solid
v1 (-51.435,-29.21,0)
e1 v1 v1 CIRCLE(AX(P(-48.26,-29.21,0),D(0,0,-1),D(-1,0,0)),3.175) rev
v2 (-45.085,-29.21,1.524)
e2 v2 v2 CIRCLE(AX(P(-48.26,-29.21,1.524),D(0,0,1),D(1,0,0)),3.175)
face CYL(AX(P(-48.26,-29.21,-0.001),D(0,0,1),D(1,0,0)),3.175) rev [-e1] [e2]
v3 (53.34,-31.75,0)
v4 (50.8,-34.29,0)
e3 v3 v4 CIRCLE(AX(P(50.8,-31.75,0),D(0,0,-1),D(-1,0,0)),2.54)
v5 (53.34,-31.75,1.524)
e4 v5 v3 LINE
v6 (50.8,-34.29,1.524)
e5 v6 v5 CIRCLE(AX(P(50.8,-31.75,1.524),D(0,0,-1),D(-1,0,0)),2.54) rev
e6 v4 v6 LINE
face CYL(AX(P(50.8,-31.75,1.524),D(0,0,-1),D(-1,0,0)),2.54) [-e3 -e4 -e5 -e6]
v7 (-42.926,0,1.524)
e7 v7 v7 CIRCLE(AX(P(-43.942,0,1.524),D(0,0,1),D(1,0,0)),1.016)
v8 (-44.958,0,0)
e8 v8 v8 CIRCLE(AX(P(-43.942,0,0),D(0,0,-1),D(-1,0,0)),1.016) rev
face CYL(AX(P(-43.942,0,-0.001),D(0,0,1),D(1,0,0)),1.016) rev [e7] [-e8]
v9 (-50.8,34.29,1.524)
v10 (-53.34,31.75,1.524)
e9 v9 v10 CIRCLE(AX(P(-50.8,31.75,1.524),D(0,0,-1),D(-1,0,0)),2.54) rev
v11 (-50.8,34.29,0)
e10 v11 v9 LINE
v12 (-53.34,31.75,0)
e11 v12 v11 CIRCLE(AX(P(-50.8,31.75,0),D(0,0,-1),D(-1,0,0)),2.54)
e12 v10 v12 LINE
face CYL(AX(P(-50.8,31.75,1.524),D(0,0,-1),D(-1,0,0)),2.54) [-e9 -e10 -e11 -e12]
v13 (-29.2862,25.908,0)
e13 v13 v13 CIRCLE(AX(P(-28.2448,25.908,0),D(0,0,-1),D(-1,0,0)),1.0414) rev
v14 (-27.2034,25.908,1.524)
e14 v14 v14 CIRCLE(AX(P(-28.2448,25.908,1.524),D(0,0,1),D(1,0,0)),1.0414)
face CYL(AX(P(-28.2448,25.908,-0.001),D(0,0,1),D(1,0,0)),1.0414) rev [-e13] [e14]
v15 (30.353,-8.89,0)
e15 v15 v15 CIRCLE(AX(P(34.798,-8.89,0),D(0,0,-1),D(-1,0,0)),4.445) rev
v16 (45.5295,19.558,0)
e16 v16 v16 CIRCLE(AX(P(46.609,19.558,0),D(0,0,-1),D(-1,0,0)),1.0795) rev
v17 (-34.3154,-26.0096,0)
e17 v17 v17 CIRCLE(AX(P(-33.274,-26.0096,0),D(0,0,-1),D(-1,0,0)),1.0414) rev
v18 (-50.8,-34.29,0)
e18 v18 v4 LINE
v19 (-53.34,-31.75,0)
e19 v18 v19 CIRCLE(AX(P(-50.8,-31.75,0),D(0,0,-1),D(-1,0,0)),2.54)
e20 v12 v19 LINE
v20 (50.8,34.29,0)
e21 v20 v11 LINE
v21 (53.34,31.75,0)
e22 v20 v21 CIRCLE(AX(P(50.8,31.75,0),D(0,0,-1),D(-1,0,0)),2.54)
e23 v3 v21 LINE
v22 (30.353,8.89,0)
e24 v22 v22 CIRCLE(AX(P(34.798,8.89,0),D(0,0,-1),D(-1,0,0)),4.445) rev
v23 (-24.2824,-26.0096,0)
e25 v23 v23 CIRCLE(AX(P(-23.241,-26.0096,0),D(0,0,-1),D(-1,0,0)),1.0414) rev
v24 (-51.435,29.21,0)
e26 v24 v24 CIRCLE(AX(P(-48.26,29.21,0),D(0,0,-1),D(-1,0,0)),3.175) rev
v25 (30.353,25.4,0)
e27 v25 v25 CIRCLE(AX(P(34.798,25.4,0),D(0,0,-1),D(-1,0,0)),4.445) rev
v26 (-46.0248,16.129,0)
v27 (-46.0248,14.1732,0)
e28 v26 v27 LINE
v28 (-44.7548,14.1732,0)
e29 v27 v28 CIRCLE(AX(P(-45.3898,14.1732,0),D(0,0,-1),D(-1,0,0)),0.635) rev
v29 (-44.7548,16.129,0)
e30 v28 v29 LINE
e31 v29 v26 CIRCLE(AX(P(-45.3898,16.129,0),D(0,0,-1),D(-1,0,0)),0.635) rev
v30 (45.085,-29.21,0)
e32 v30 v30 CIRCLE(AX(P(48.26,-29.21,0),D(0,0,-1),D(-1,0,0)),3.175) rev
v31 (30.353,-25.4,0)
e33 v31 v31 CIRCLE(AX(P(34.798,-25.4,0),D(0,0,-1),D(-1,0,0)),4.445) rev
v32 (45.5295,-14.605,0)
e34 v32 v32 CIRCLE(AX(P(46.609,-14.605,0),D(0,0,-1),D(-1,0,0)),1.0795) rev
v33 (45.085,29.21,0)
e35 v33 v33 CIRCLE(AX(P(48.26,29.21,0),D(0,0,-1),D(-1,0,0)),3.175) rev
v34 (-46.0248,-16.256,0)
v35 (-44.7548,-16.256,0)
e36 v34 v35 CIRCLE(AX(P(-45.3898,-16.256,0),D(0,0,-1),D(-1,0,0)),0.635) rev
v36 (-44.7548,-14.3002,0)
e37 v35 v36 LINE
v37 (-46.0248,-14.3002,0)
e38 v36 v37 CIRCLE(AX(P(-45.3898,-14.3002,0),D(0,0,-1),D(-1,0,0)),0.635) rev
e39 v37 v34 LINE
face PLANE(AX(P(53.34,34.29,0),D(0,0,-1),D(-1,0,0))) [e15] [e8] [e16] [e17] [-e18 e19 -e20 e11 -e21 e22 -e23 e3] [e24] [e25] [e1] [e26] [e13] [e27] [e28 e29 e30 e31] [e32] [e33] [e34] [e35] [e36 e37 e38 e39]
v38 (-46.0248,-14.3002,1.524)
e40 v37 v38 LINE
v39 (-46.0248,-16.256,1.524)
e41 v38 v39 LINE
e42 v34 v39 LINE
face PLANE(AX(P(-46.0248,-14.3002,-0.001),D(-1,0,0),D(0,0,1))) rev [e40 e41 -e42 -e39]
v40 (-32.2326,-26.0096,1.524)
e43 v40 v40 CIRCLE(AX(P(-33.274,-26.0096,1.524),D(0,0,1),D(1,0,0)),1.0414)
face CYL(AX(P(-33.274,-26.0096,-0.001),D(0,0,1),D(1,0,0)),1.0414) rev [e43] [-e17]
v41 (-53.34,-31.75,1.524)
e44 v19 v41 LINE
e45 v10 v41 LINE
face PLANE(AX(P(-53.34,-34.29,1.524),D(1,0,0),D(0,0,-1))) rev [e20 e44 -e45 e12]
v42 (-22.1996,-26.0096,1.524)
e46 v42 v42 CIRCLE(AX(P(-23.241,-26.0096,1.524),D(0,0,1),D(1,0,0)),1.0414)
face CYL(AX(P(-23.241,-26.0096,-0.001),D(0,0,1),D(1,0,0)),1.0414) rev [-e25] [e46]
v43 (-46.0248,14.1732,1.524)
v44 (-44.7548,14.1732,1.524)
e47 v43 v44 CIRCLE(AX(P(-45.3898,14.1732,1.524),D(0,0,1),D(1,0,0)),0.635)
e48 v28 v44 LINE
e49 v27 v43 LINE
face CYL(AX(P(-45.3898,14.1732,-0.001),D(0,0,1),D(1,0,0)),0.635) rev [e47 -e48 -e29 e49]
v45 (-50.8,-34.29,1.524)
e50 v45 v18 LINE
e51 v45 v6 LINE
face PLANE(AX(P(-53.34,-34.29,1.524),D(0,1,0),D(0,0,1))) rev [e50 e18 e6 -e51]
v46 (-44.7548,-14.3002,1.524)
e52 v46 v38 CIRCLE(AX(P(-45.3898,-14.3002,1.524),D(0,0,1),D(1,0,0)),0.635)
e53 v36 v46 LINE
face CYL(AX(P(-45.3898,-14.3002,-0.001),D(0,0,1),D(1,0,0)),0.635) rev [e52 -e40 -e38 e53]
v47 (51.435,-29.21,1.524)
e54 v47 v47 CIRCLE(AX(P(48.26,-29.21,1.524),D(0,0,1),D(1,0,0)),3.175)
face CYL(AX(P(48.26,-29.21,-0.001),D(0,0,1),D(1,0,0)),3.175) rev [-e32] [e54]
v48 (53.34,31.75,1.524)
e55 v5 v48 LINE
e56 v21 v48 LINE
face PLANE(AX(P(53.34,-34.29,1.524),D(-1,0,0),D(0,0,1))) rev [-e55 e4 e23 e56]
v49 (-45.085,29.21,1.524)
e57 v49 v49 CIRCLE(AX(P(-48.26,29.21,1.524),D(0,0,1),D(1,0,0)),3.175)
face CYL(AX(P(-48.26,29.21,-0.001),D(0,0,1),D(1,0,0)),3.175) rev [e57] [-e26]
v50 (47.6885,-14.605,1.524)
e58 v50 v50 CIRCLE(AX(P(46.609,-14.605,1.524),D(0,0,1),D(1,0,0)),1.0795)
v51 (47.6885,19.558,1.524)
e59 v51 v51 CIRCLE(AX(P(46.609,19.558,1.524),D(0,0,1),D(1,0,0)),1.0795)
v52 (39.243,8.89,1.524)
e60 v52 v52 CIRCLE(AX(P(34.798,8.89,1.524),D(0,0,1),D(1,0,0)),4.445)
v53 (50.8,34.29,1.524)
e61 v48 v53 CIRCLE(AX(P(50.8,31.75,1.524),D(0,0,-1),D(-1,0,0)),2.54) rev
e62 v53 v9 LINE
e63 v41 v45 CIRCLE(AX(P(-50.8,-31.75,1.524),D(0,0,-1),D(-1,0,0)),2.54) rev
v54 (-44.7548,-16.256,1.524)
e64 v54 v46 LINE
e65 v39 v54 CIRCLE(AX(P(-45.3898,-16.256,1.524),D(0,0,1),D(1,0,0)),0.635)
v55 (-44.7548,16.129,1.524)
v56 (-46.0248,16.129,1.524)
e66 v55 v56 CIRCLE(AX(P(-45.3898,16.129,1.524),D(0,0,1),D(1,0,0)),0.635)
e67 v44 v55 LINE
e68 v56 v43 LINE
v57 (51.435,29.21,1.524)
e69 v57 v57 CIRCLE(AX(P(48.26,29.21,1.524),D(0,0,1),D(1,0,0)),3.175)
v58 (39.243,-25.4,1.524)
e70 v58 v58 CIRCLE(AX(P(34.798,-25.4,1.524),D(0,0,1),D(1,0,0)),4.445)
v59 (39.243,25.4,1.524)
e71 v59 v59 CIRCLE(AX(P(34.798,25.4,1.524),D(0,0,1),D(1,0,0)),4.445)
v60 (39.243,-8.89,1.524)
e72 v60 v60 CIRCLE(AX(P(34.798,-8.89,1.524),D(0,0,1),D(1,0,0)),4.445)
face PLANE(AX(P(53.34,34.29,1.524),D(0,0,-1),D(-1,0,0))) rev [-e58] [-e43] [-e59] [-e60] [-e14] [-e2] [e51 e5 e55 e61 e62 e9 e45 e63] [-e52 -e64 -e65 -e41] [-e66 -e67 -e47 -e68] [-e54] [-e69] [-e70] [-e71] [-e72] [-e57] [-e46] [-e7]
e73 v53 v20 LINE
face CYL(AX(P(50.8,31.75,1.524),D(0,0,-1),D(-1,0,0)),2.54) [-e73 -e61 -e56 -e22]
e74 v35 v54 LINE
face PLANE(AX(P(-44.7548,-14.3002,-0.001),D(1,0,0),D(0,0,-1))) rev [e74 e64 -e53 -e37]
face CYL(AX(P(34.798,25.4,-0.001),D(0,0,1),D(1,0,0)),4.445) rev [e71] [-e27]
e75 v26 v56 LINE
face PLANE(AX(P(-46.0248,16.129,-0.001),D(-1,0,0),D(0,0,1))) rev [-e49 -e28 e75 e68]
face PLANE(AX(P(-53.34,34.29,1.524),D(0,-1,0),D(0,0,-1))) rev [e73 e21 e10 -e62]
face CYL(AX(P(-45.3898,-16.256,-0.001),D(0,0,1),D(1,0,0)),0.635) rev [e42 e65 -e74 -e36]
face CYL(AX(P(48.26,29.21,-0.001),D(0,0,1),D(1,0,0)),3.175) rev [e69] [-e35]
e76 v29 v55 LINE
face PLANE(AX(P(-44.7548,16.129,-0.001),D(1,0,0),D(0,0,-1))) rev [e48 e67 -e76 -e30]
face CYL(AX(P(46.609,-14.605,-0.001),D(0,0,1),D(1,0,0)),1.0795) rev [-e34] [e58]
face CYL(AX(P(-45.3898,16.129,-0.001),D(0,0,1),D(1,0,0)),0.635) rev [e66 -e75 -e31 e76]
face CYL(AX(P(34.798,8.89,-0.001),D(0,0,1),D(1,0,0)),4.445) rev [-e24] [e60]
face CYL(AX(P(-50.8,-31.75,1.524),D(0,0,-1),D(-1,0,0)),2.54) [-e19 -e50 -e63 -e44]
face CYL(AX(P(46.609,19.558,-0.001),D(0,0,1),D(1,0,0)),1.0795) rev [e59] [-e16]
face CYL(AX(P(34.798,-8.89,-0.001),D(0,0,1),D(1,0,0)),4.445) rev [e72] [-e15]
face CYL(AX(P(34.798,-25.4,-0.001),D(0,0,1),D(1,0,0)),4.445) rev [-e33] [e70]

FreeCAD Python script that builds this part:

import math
import FreeCAD as App
import Part
import Sketcher

V = App.Vector
Q = App.Units.Quantity


def edges_at(feature, points):
    """Names of the edges that pass closest to the given points."""
    edges = feature.Shape.Edges
    near = lambda p: min(range(len(edges)), key=lambda i: edges[i].distToShape(Part.Vertex(*p))[0])
    return sorted({f"Edge{near(p) + 1}" for p in points})


def add_polygon(sketch, points):
    """Adds a closed chain of lines whose ends are joined by coincident constraints."""
    first, n = sketch.GeometryCount, len(points)
    for a, b in zip(points, points[1:] + points[:1]):
        sketch.addGeometry(Part.LineSegment(App.Vector(*a, 0), App.Vector(*b, 0)), False)
    for i in range(n):
        sketch.addConstraint(Sketcher.Constraint("Coincident", first + i, 2, first + (i + 1) % n, 1))

doc = App.newDocument("Part")
body = doc.addObject("PartDesign::Body", "Body")

# Sketch on XY plane
sketch1 = body.newObject("Sketcher::SketchObject", "Sketch")
sketch1.AttachmentSupport = (doc.getObject("XY_Plane"), [""])
sketch1.MapMode = "FlatFace"
add_polygon(sketch1, [(-53.34, 34.29), (-53.34, -34.29), (53.34, -34.29), (53.34, 34.29)])  # lines 0-3
sketch1.addConstraint([
    Sketcher.Constraint("Vertical", 0),
    Sketcher.Constraint("Horizontal", 1),
    Sketcher.Constraint("Vertical", 2),
    Sketcher.Constraint("Horizontal", 3),
    Sketcher.Constraint("Symmetric", 0, 2, 2, 2, -1, 1),
    Sketcher.Constraint("DistanceX", 1, 1, 1, 2, Q("4.2 in")),
    Sketcher.Constraint("DistanceY", 0, 2, 0, 1, Q("2.7 in")),
])
pad1 = body.newObject("PartDesign::Pad", "Pad")
pad1.Profile = sketch1
pad1.Length = Q("0.06 in")

# Sketch on XY plane
sketch2 = body.newObject("Sketcher::SketchObject", "Sketch001")
sketch2.AttachmentSupport = (doc.getObject("XY_Plane"), [""])
sketch2.MapMode = "FlatFace"
sketch2.AttachmentOffset = App.Placement(V(0, 0, 0.06 * 25.4), App.Rotation())
sketch2.addGeometry(Part.Circle(V(-48.26, 29.21, 0), V(0, 0, 1), 3.175), False)
sketch2.addConstraint([
    Sketcher.Constraint("Diameter", 0, Q("0.25 in")),
    Sketcher.Constraint("DistanceX", 0, 3, -1, 1, Q("1.9 in")),
    Sketcher.Constraint("DistanceY", -1, 1, 0, 3, Q("1.15 in")),
])
pocket1 = body.newObject("PartDesign::Pocket", "Pocket")
pocket1.Profile = sketch2
pocket1.Type = "UpToFirst"

# Sketch on XY plane
sketch3 = body.newObject("Sketcher::SketchObject", "Sketch002")
sketch3.AttachmentSupport = (doc.getObject("XY_Plane"), [""])
sketch3.MapMode = "FlatFace"
sketch3.AttachmentOffset = App.Placement(V(0, 0, 0.06 * 25.4), App.Rotation())
sketch3.addGeometry(Part.Circle(V(-48.26, -29.21, 0), V(0, 0, 1), 3.175), False)
sketch3.addConstraint([
    Sketcher.Constraint("Diameter", 0, Q("0.25 in")),
    Sketcher.Constraint("DistanceX", 0, 3, -1, 1, Q("1.9 in")),
    Sketcher.Constraint("DistanceY", 0, 3, -1, 1, Q("1.15 in")),
])
pocket2 = body.newObject("PartDesign::Pocket", "Pocket001")
pocket2.Profile = sketch3
pocket2.Type = "UpToFirst"

# Sketch on XY plane
sketch4 = body.newObject("Sketcher::SketchObject", "Sketch003")
sketch4.AttachmentSupport = (doc.getObject("XY_Plane"), [""])
sketch4.MapMode = "FlatFace"
sketch4.AttachmentOffset = App.Placement(V(0, 0, 0.06 * 25.4), App.Rotation())
sketch4.addGeometry(Part.Circle(V(48.26, -29.21, 0), V(0, 0, 1), 3.175), False)
sketch4.addConstraint([
    Sketcher.Constraint("Diameter", 0, Q("0.25 in")),
    Sketcher.Constraint("DistanceX", -1, 1, 0, 3, Q("1.9 in")),
    Sketcher.Constraint("DistanceY", 0, 3, -1, 1, Q("1.15 in")),
])
pocket3 = body.newObject("PartDesign::Pocket", "Pocket002")
pocket3.Profile = sketch4
pocket3.Type = "UpToFirst"

# Sketch on XY plane
sketch5 = body.newObject("Sketcher::SketchObject", "Sketch004")
sketch5.AttachmentSupport = (doc.getObject("XY_Plane"), [""])
sketch5.MapMode = "FlatFace"
sketch5.AttachmentOffset = App.Placement(V(0, 0, 0.06 * 25.4), App.Rotation())
sketch5.addGeometry(Part.Circle(V(48.26, 29.21, 0), V(0, 0, 1), 3.175), False)
sketch5.addConstraint([
    Sketcher.Constraint("Diameter", 0, Q("0.25 in")),
    Sketcher.Constraint("DistanceX", -1, 1, 0, 3, Q("1.9 in")),
    Sketcher.Constraint("DistanceY", -1, 1, 0, 3, Q("1.15 in")),
])
pocket4 = body.newObject("PartDesign::Pocket", "Pocket003")
pocket4.Profile = sketch5
pocket4.Type = "UpToFirst"

# Sketch on XY plane
sketch6 = body.newObject("Sketcher::SketchObject", "Sketch005")
sketch6.AttachmentSupport = (doc.getObject("XY_Plane"), [""])
sketch6.MapMode = "FlatFace"
sketch6.AttachmentOffset = App.Placement(V(0, 0, 0.06 * 25.4), App.Rotation())
sketch6.addGeometry(Part.Circle(V(34.798, -25.4, 0), V(0, 0, 1), 4.445), False)
sketch6.addConstraint([
    Sketcher.Constraint("Diameter", 0, Q("0.35 in")),
    Sketcher.Constraint("DistanceY", 0, 3, -1, 1, Q("1 in")),
    Sketcher.Constraint("DistanceX", -1, 1, 0, 3, Q("1.37 in")),
])
pocket5 = body.newObject("PartDesign::Pocket", "Pocket004")
pocket5.Profile = sketch6
pocket5.Type = "UpToFirst"

# Sketch on XY plane
sketch7 = body.newObject("Sketcher::SketchObject", "Sketch006")
sketch7.AttachmentSupport = (doc.getObject("XY_Plane"), [""])
sketch7.MapMode = "FlatFace"
sketch7.AttachmentOffset = App.Placement(V(0, 0, 0.06 * 25.4), App.Rotation())
sketch7.addGeometry(Part.Circle(V(34.798, -8.89, 0), V(0, 0, 1), 4.445), False)
sketch7.addConstraint([
    Sketcher.Constraint("Diameter", 0, Q("0.35 in")),
    Sketcher.Constraint("DistanceX", -1, 1, 0, 3, Q("1.37 in")),
    Sketcher.Constraint("DistanceY", 0, 3, -1, 1, Q("0.35 in")),
])
pocket6 = body.newObject("PartDesign::Pocket", "Pocket005")
pocket6.Profile = sketch7
pocket6.Type = "UpToFirst"

# Sketch on XY plane
sketch8 = body.newObject("Sketcher::SketchObject", "Sketch007")
sketch8.AttachmentSupport = (doc.getObject("XY_Plane"), [""])
sketch8.MapMode = "FlatFace"
sketch8.AttachmentOffset = App.Placement(V(0, 0, 0.06 * 25.4), App.Rotation())
sketch8.addGeometry(Part.Circle(V(34.798, 8.89, 0), V(0, 0, 1), 4.445), False)
sketch8.addConstraint([
    Sketcher.Constraint("Diameter", 0, Q("0.35 in")),
    Sketcher.Constraint("DistanceX", -1, 1, 0, 3, Q("1.37 in")),
    Sketcher.Constraint("DistanceY", -1, 1, 0, 3, Q("0.35 in")),
])
pocket7 = body.newObject("PartDesign::Pocket", "Pocket006")
pocket7.Profile = sketch8
pocket7.Type = "UpToFirst"

# Sketch on XY plane
sketch9 = body.newObject("Sketcher::SketchObject", "Sketch008")
sketch9.AttachmentSupport = (doc.getObject("XY_Plane"), [""])
sketch9.MapMode = "FlatFace"
sketch9.AttachmentOffset = App.Placement(V(0, 0, 0.06 * 25.4), App.Rotation())
sketch9.addGeometry(Part.Circle(V(34.798, 25.4, 0), V(0, 0, 1), 4.445), False)
sketch9.addConstraint([
    Sketcher.Constraint("Diameter", 0, Q("0.35 in")),
    Sketcher.Constraint("DistanceY", -1, 1, 0, 3, Q("1 in")),
    Sketcher.Constraint("DistanceX", -1, 1, 0, 3, Q("1.37 in")),
])
pocket8 = body.newObject("PartDesign::Pocket", "Pocket007")
pocket8.Profile = sketch9
pocket8.Type = "UpToFirst"
doc.recompute()

fillet = body.newObject("PartDesign::Fillet", "Fillet")
fillet.Base = (pocket8, edges_at(pocket8, [
    (53.34, -34.29, 0.762),
    (-53.34, -34.29, 0.762),
    (-53.34, 34.29, 0.762),
    (53.34, 34.29, 0.762),
]))
fillet.Radius = Q("0.1 in")

# Sketch on XY plane
sketch10 = body.newObject("Sketcher::SketchObject", "Sketch009")
sketch10.AttachmentSupport = (doc.getObject("XY_Plane"), [""])
sketch10.MapMode = "FlatFace"
sketch10.AttachmentOffset = App.Placement(V(0, 0, 0.06 * 25.4), App.Rotation())
sketch10.addGeometry(Part.Circle(V(-23.241, -26.0096, 0), V(0, 0, 1), 1.0414), False)
sketch10.addConstraint([
    Sketcher.Constraint("Diameter", 0, Q("0.082 in")),
    Sketcher.Constraint("DistanceX", 0, 3, -1, 1, Q("0.915 in")),
    Sketcher.Constraint("DistanceY", 0, 3, -1, 1, Q("1.024 in")),
])
pocket9 = body.newObject("PartDesign::Pocket", "Pocket008")
pocket9.Profile = sketch10
pocket9.Type = "UpToFirst"

# Sketch on XY plane
sketch11 = body.newObject("Sketcher::SketchObject", "Sketch010")
sketch11.AttachmentSupport = (doc.getObject("XY_Plane"), [""])
sketch11.MapMode = "FlatFace"
sketch11.AttachmentOffset = App.Placement(V(0, 0, 0.06 * 25.4), App.Rotation())
sketch11.addGeometry(Part.Circle(V(-33.274, -26.0096, 0), V(0, 0, 1), 1.0414), False)
sketch11.addConstraint([
    Sketcher.Constraint("Diameter", 0, Q("0.082 in")),
    Sketcher.Constraint("DistanceX", 0, 3, -1, 1, Q("1.31 in")),
    Sketcher.Constraint("DistanceY", 0, 3, -1, 1, Q("1.024 in")),
])
pocket10 = body.newObject("PartDesign::Pocket", "Pocket009")
pocket10.Profile = sketch11
pocket10.Type = "UpToFirst"

# Sketch on XY plane
sketch12 = body.newObject("Sketcher::SketchObject", "Sketch011")
sketch12.AttachmentSupport = (doc.getObject("XY_Plane"), [""])
sketch12.MapMode = "FlatFace"
sketch12.AttachmentOffset = App.Placement(V(0, 0, 0.06 * 25.4), App.Rotation())
sketch12.addGeometry(Part.Circle(V(-28.2448, 25.908, 0), V(0, 0, 1), 1.0414), False)
sketch12.addConstraint([
    Sketcher.Constraint("Diameter", 0, Q("0.082 in")),
    Sketcher.Constraint("DistanceY", -1, 1, 0, 3, Q("1.02 in")),
    Sketcher.Constraint("DistanceX", 0, 3, -1, 1, Q("1.112 in")),
])
pocket11 = body.newObject("PartDesign::Pocket", "Pocket010")
pocket11.Profile = sketch12
pocket11.Type = "UpToFirst"

# Sketch on XY plane
sketch13 = body.newObject("Sketcher::SketchObject", "Sketch012")
sketch13.AttachmentSupport = (doc.getObject("XY_Plane"), [""])
sketch13.MapMode = "FlatFace"
sketch13.AttachmentOffset = App.Placement(V(0, 0, 0.06 * 25.4), App.Rotation())
sketch13.addGeometry(Part.Circle(V(46.609, 19.558, 0), V(0, 0, 1), 1.0795), False)
sketch13.addConstraint([
    Sketcher.Constraint("Diameter", 0, Q("0.085 in")),
    Sketcher.Constraint("DistanceY", -1, 1, 0, 3, Q("0.77 in")),
    Sketcher.Constraint("DistanceX", -1, 1, 0, 3, Q("1.835 in")),
])
pocket12 = body.newObject("PartDesign::Pocket", "Pocket011")
pocket12.Profile = sketch13
pocket12.Type = "UpToFirst"

# Sketch on XY plane
sketch14 = body.newObject("Sketcher::SketchObject", "Sketch013")
sketch14.AttachmentSupport = (doc.getObject("XY_Plane"), [""])
sketch14.MapMode = "FlatFace"
sketch14.AttachmentOffset = App.Placement(V(0, 0, 0.06 * 25.4), App.Rotation())
sketch14.addGeometry(Part.Circle(V(46.609, -14.605, 0), V(0, 0, 1), 1.0795), False)
sketch14.addConstraint([
    Sketcher.Constraint("Diameter", 0, Q("0.085 in")),
    Sketcher.Constraint("DistanceX", -1, 1, 0, 3, Q("1.835 in")),
    Sketcher.Constraint("DistanceY", 0, 3, -1, 1, Q("0.575 in")),
])
pocket13 = body.newObject("PartDesign::Pocket", "Pocket012")
pocket13.Profile = sketch14
pocket13.Type = "UpToFirst"

# Sketch on XY plane
sketch15 = body.newObject("Sketcher::SketchObject", "Sketch014")
sketch15.AttachmentSupport = (doc.getObject("XY_Plane"), [""])
sketch15.MapMode = "FlatFace"
sketch15.AttachmentOffset = App.Placement(V(0, 0, 0.06 * 25.4), App.Rotation())
sketch15.addGeometry(Part.Circle(V(-43.942, 0, 0), V(0, 0, 1), 1.016), False)
sketch15.addConstraint([
    Sketcher.Constraint("PointOnObject", 0, 3, -1),
    Sketcher.Constraint("Diameter", 0, Q("0.08 in")),
    Sketcher.Constraint("DistanceX", 0, 3, -1, 1, Q("1.73 in")),
])
pocket14 = body.newObject("PartDesign::Pocket", "Pocket013")
pocket14.Profile = sketch15
pocket14.Type = "UpToFirst"

# Sketch on XY plane
sketch16 = body.newObject("Sketcher::SketchObject", "Sketch015")
sketch16.AttachmentSupport = (doc.getObject("XY_Plane"), [""])
sketch16.MapMode = "FlatFace"
sketch16.AttachmentOffset = App.Placement(V(0, 0, 0.06 * 25.4), App.Rotation())
sketch16.addGeometry([
    Part.LineSegment(V(-44.7548, 14.1732, 0), V(-44.7548, 16.129, 0)),
    Part.ArcOfCircle(Part.Circle(V(-45.3898, 16.129, 0), V(0, 0, 1), 0.635), math.radians(0), math.radians(180)),
    Part.LineSegment(V(-46.0248, 16.129, 0), V(-46.0248, 14.1732, 0)),
    Part.ArcOfCircle(Part.Circle(V(-45.3898, 14.1732, 0), V(0, 0, 1), 0.635), math.radians(180), math.radians(360)),
], False)
sketch16.addConstraint([
    Sketcher.Constraint("Tangent", 0, 2, 1, 1),
    Sketcher.Constraint("Tangent", 1, 2, 2, 1),
    Sketcher.Constraint("Tangent", 2, 2, 3, 1),
    Sketcher.Constraint("Tangent", 3, 2, 0, 1),
    Sketcher.Constraint("Vertical", 0),
    Sketcher.Constraint("Vertical", 2),
    Sketcher.Constraint("Radius", 1, Q("0.025 in")),
    Sketcher.Constraint("DistanceY", 0, 1, 0, 2, Q("0.077 in")),
    Sketcher.Constraint("DistanceX", 1, 3, -1, 1, Q("1.787 in")),
    Sketcher.Constraint("DistanceY", -1, 1, 1, 3, Q("0.635 in")),
])
pocket15 = body.newObject("PartDesign::Pocket", "Pocket014")
pocket15.Profile = sketch16
pocket15.Type = "UpToFirst"

# Sketch on XY plane
sketch17 = body.newObject("Sketcher::SketchObject", "Sketch016")
sketch17.AttachmentSupport = (doc.getObject("XY_Plane"), [""])
sketch17.MapMode = "FlatFace"
sketch17.AttachmentOffset = App.Placement(V(0, 0, 0.06 * 25.4), App.Rotation())
sketch17.addGeometry([
    Part.LineSegment(V(-44.7548, -16.256, 0), V(-44.7548, -14.3002, 0)),
    Part.ArcOfCircle(Part.Circle(V(-45.3898, -14.3002, 0), V(0, 0, 1), 0.635), math.radians(0), math.radians(180)),
    Part.LineSegment(V(-46.0248, -14.3002, 0), V(-46.0248, -16.256, 0)),
    Part.ArcOfCircle(Part.Circle(V(-45.3898, -16.256, 0), V(0, 0, 1), 0.635), math.radians(180), math.radians(360)),
], False)
sketch17.addConstraint([
    Sketcher.Constraint("Tangent", 0, 2, 1, 1),
    Sketcher.Constraint("Tangent", 1, 2, 2, 1),
    Sketcher.Constraint("Tangent", 2, 2, 3, 1),
    Sketcher.Constraint("Tangent", 3, 2, 0, 1),
    Sketcher.Constraint("Vertical", 0),
    Sketcher.Constraint("Vertical", 2),
    Sketcher.Constraint("Radius", 1, Q("0.025 in")),
    Sketcher.Constraint("DistanceY", 0, 1, 0, 2, Q("0.077 in")),
    Sketcher.Constraint("DistanceY", 3, 3, -1, 1, Q("0.64 in")),
    Sketcher.Constraint("DistanceX", 1, 3, -1, 1, Q("1.787 in")),
])
pocket16 = body.newObject("PartDesign::Pocket", "Pocket015")
pocket16.Profile = sketch17
pocket16.Type = "UpToFirst"

doc.recompute()
